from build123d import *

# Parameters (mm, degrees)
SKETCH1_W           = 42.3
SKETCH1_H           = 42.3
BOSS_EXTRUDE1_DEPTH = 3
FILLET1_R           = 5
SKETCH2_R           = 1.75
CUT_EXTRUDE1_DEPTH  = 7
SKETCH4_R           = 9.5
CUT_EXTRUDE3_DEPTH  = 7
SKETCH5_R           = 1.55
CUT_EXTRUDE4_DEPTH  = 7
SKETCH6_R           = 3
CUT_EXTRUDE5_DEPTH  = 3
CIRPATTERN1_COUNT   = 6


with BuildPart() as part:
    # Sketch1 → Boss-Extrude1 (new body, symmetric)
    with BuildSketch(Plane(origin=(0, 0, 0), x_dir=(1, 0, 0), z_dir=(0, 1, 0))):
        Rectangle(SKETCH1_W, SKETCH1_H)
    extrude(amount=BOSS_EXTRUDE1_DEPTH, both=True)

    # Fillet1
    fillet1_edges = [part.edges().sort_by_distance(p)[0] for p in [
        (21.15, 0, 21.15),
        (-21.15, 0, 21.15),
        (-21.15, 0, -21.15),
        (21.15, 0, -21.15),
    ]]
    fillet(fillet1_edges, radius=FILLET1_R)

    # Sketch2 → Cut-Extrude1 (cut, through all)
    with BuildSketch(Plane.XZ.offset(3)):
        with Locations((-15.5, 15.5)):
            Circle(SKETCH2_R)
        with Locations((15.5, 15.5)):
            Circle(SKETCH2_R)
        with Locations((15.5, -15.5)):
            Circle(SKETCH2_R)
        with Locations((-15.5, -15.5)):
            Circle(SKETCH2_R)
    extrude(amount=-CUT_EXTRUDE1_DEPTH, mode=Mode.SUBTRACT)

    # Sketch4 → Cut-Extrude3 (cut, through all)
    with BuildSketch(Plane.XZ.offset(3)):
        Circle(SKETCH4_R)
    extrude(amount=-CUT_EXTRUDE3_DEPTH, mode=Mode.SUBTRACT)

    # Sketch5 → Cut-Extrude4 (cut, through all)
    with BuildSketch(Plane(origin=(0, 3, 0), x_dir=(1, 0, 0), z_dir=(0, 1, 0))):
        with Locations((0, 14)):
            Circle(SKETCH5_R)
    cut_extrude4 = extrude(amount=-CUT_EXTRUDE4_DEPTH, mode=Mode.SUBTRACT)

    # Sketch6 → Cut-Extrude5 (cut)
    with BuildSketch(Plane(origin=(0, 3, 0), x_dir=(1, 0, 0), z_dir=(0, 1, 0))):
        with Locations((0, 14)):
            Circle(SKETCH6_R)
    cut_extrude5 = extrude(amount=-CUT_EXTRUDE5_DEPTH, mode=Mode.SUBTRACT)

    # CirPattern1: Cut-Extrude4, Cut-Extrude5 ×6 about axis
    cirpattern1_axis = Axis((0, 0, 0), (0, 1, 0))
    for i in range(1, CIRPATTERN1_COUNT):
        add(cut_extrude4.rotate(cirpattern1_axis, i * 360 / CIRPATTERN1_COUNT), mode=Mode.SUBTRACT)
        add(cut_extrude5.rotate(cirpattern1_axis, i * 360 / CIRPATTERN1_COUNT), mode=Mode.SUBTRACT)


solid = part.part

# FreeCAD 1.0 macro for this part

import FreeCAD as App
import Part
import Sketcher
Q = App.Units.Quantity


def edges_at(feature, points):
    """Names of the edges that pass closest to the given points."""
    edges = feature.Shape.Edges
    near = lambda p: min(range(len(edges)), key=lambda i: edges[i].distToShape(Part.Vertex(*p))[0])
    return sorted({f"Edge{near(p) + 1}" for p in points})


def add_polygon(sketch, points):
    """Adds a closed chain of lines whose ends are joined by coincident constraints."""
    first, n = sketch.GeometryCount, len(points)
    for a, b in zip(points, points[1:] + points[:1]):
        sketch.addGeometry(Part.LineSegment(App.Vector(*a, 0), App.Vector(*b, 0)), False)
    for i in range(n):
        sketch.addConstraint(Sketcher.Constraint("Coincident", first + i, 2, first + (i + 1) % n, 1))

doc = App.newDocument("Part")
body = doc.addObject("PartDesign::Body", "Body")

sketch1 = body.newObject("Sketcher::SketchObject", "Sketch")
sketch1.AttachmentSupport = (doc.getObject("XZ_Plane"), [""])
sketch1.MapMode = "FlatFace"
add_polygon(sketch1, [(-21.15, -21.15), (-21.15, 21.15), (21.15, 21.15), (21.15, -21.15)])
sketch1.addConstraint([
    Sketcher.Constraint("Vertical", 0),
    Sketcher.Constraint("Horizontal", 1),
    Sketcher.Constraint("Vertical", 2),
    Sketcher.Constraint("Horizontal", 3),
    Sketcher.Constraint("Symmetric", 0, 2, 2, 2, -1, 1),
    Sketcher.Constraint("Equal", 3, 0),
    Sketcher.Constraint("DistanceX", 1, 1, 1, 2, Q("42.3 mm")),
])
pad1 = body.newObject("PartDesign::Pad", "Pad")
pad1.Profile = sketch1
pad1.Length = 6
pad1.Midplane = True
doc.recompute()

fillet = body.newObject("PartDesign::Fillet", "Fillet")
fillet.Base = (pad1, edges_at(pad1, [
    (21.15, 0, 21.15),
    (-21.15, 0, 21.15),
    (-21.15, 0, -21.15),
    (21.15, 0, -21.15),
]))
fillet.Radius = 5

sketch2 = body.newObject("Sketcher::SketchObject", "Sketch001")
sketch2.AttachmentSupport = (doc.getObject("XZ_Plane"), [""])
sketch2.MapMode = "FlatFace"
sketch2.AttachmentOffset = App.Placement(App.Vector(0, 0, 3), App.Rotation())
sketch2.addGeometry([
    Part.Circle(App.Vector(-15.5, 15.5, 0), App.Vector(0, 0, 1), 1.75),
    Part.Circle(App.Vector(15.5, 15.5, 0), App.Vector(0, 0, 1), 1.75),
    Part.Circle(App.Vector(15.5, -15.5, 0), App.Vector(0, 0, 1), 1.75),
    Part.Circle(App.Vector(-15.5, -15.5, 0), App.Vector(0, 0, 1), 1.75),
], False)
sketch2.addConstraint([
    Sketcher.Constraint("Equal", 0, 1),
    Sketcher.Constraint("Equal", 1, 2),
    Sketcher.Constraint("Equal", 2, 3),
    Sketcher.Constraint("Symmetric", 0, 3, 2, 3, -1, 1),
    Sketcher.Constraint("Symmetric", 1, 3, 3, 3, -1, 1),
    Sketcher.Constraint("Symmetric", 0, 3, 1, 3, -2),
    Sketcher.Constraint("Diameter", 0, Q("3.5 mm")),
    Sketcher.Constraint("DistanceX", 0, 3, 1, 3, Q("31 mm")),
    Sketcher.Constraint("DistanceY", 2, 3, 1, 3, Q("31 mm")),
])
pocket1 = body.newObject("PartDesign::Pocket", "Pocket")
pocket1.Profile = sketch2
pocket1.Type = "ThroughAll"

sketch3 = body.newObject("Sketcher::SketchObject", "Sketch002")
sketch3.AttachmentSupport = (doc.getObject("XZ_Plane"), [""])
sketch3.MapMode = "FlatFace"
sketch3.AttachmentOffset = App.Placement(App.Vector(0, 0, 3), App.Rotation())
sketch3.addGeometry(Part.Circle(App.Vector(0, 0, 0), App.Vector(0, 0, 1), 9.5), False)
sketch3.addConstraint([
    Sketcher.Constraint("Coincident", 0, 3, -1, 1),
    Sketcher.Constraint("Diameter", 0, Q("19 mm")),
])
pocket2 = body.newObject("PartDesign::Pocket", "Pocket001")
pocket2.Profile = sketch3
pocket2.Type = "ThroughAll"

sketch4 = body.newObject("Sketcher::SketchObject", "Sketch003")
sketch4.AttachmentSupport = (doc.getObject("XZ_Plane"), [""])
sketch4.MapMode = "FlatFace"
sketch4.AttachmentOffset = App.Placement(App.Vector(0, 0, -3), App.Rotation())
sketch4.addGeometry(Part.Circle(App.Vector(0, -14, 0), App.Vector(0, 0, 1), 1.55), False)
sketch4.addConstraint([
    Sketcher.Constraint("PointOnObject", 0, 3, -2),
    Sketcher.Constraint("Diameter", 0, Q("3.1 mm")),
    Sketcher.Constraint("DistanceY", 0, 3, -1, 1, Q("14 mm")),
])
pocket3 = body.newObject("PartDesign::Pocket", "Pocket002")
pocket3.Profile = sketch4
pocket3.Type = "ThroughAll"
pocket3.Reversed = True

sketch5 = body.newObject("Sketcher::SketchObject", "Sketch004")
sketch5.AttachmentSupport = (doc.getObject("XZ_Plane"), [""])
sketch5.MapMode = "FlatFace"
sketch5.AttachmentOffset = App.Placement(App.Vector(0, 0, -3), App.Rotation())
sketch5.addGeometry(Part.Circle(App.Vector(0, -14, 0), App.Vector(0, 0, 1), 3), False)
sketch5.addConstraint([
    Sketcher.Constraint("PointOnObject", 0, 3, -2),
    Sketcher.Constraint("Diameter", 0, Q("6 mm")),
    Sketcher.Constraint("DistanceY", 0, 3, -1, 1, Q("14 mm")),
])
pocket4 = body.newObject("PartDesign::Pocket", "Pocket003")
pocket4.Profile = sketch5
pocket4.Length = 3
pocket4.Reversed = True
doc.recompute()

polarpattern = body.newObject("PartDesign::PolarPattern", "PolarPattern")
polarpattern.Originals = [pocket3, pocket4]
polarpattern.Axis = (doc.getObject("Y_Axis"), [""])
polarpattern.Angle = 360
polarpattern.Occurrences = 6
body.Tip = polarpattern

doc.recompute()
